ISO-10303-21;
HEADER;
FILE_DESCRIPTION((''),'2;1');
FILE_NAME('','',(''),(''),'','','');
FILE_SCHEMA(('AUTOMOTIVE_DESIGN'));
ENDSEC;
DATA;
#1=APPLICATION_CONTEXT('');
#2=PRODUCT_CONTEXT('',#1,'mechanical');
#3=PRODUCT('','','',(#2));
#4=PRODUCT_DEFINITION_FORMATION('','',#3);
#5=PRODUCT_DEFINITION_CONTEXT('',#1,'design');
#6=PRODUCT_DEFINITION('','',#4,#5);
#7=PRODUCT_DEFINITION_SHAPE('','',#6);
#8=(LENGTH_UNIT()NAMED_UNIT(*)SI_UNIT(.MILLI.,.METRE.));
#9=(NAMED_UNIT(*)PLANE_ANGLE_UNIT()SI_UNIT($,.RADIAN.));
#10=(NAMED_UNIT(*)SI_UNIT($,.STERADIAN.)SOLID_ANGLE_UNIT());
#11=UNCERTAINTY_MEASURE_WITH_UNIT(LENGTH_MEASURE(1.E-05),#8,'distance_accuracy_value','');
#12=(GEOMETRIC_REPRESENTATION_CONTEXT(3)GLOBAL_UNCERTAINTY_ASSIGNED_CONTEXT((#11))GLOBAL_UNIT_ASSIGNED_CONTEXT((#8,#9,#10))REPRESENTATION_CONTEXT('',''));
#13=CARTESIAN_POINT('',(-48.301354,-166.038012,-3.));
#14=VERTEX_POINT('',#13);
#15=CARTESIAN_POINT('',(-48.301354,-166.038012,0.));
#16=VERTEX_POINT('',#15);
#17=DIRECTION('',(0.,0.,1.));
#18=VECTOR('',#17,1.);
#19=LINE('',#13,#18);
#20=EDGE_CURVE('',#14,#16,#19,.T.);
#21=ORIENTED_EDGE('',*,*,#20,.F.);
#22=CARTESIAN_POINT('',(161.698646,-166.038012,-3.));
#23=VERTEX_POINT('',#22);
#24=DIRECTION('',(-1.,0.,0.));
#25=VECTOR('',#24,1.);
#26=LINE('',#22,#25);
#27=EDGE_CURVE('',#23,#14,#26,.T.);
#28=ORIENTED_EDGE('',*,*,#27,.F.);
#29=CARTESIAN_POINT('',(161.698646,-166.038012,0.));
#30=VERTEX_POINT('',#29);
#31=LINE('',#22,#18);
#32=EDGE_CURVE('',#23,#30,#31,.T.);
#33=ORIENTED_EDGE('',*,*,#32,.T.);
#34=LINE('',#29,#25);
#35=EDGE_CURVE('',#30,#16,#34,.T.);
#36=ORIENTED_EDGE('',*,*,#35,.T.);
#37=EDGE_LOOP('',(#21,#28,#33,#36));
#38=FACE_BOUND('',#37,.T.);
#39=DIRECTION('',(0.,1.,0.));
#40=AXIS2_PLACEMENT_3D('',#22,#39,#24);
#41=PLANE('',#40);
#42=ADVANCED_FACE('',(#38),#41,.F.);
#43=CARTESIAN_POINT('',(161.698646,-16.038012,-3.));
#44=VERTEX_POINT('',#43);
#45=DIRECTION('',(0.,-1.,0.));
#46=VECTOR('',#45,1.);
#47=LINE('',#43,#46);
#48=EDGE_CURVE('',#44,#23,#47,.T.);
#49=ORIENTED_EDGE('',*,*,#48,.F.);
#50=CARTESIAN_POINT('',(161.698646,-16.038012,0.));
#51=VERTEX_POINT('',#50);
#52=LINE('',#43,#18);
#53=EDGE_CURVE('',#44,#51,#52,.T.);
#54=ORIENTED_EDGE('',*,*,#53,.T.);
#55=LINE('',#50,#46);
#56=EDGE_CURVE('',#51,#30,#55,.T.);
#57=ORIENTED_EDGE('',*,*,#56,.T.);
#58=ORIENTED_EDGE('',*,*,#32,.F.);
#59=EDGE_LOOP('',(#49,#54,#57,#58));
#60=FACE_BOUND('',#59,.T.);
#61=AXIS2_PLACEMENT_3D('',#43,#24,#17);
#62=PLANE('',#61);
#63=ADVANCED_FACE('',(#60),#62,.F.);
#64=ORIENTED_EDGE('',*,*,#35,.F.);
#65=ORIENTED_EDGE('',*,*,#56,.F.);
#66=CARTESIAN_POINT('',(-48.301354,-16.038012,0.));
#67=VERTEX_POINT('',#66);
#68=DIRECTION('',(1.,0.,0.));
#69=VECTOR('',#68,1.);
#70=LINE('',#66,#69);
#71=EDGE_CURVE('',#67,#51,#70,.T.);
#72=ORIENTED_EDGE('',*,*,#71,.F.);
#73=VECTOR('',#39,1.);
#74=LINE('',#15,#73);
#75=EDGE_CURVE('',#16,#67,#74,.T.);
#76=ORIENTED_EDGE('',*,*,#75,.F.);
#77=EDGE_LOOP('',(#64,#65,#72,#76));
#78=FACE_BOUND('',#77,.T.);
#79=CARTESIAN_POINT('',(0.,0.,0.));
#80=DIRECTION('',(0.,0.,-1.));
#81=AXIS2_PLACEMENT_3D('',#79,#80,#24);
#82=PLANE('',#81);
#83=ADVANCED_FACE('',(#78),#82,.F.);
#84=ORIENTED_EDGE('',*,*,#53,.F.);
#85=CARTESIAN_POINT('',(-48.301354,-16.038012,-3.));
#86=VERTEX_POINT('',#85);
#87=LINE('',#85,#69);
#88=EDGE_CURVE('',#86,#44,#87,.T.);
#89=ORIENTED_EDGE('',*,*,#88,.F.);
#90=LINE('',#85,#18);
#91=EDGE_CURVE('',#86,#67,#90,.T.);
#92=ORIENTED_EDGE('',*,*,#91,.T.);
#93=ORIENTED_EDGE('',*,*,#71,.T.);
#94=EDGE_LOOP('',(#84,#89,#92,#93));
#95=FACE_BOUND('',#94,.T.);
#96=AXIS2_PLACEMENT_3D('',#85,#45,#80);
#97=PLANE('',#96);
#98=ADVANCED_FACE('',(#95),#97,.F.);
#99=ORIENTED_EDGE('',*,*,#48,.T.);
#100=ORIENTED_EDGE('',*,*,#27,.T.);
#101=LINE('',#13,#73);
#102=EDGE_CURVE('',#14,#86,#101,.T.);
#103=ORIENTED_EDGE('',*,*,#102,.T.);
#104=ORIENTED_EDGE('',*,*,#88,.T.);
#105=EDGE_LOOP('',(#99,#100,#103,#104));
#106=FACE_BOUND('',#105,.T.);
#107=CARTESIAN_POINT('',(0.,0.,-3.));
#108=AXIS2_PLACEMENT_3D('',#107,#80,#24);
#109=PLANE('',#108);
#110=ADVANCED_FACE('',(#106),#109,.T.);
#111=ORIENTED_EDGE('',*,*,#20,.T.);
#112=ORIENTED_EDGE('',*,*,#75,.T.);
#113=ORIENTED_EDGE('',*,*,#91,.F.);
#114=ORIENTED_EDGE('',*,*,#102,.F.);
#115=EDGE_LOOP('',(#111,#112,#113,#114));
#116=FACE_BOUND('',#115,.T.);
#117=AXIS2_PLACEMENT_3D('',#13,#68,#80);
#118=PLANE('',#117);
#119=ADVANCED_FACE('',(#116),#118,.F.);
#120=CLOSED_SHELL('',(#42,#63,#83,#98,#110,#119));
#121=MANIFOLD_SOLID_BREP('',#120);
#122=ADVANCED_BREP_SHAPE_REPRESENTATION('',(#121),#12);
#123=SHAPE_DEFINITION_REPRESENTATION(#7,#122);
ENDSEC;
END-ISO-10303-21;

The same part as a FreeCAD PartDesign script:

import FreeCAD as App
import Part
import Sketcher
Q = App.Units.Quantity


def add_polygon(sketch, points):
    """Adds a closed chain of lines whose ends are joined by coincident constraints."""
    first, n = sketch.GeometryCount, len(points)
    for a, b in zip(points, points[1:] + points[:1]):
        sketch.addGeometry(Part.LineSegment(App.Vector(*a, 0), App.Vector(*b, 0)), False)
    for i in range(n):
        sketch.addConstraint(Sketcher.Constraint("Coincident", first + i, 2, first + (i + 1) % n, 1))

doc = App.newDocument("Part")
body = doc.addObject("PartDesign::Body", "Body")

sketch1 = body.newObject("Sketcher::SketchObject", "Sketch")
sketch1.AttachmentSupport = (doc.getObject("XY_Plane"), [""])
sketch1.MapMode = "FlatFace"
add_polygon(sketch1, [(-48.301354, -16.038012), (-48.301354, -166.038012), (161.698646, -166.038012), (161.698646, -16.038012)])
sketch1.addConstraint([
    Sketcher.Constraint("Vertical", 0),
    Sketcher.Constraint("Horizontal", 1),
    Sketcher.Constraint("Vertical", 2),
    Sketcher.Constraint("Horizontal", 3),
    Sketcher.Constraint("DistanceX", 1, 1, 1, 2, Q("210 mm")),
    Sketcher.Constraint("DistanceY", 0, 2, 0, 1, Q("150 mm")),
    Sketcher.Constraint("DistanceX", 0, 2, -1, 1, Q("48.301354 mm")),
    Sketcher.Constraint("DistanceY", 0, 2, -1, 1, Q("166.038012 mm")),
])
pad1 = body.newObject("PartDesign::Pad", "Pad")
pad1.Profile = sketch1
pad1.Length = 3
pad1.Reversed = True

doc.recompute()
